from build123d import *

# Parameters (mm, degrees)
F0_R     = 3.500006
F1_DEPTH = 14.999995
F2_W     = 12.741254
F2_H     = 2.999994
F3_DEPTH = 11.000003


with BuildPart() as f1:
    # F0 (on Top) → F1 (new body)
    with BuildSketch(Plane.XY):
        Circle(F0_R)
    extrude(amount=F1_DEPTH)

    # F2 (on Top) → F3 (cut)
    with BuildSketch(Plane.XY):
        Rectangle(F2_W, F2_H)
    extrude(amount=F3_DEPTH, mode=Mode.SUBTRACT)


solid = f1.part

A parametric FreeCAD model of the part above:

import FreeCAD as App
import Part
import Sketcher
from FreeCAD import Vector

doc = App.newDocument("Part")
params = doc.addObject("Spreadsheet::Sheet", "Params")
for row, (alias, value) in enumerate([
    ("pad1_length", "14.999995 mm"),
    ("pocket1_length", "11.000003 mm"),
], start=1):
    params.set(f"A{row}", alias)
    params.set(f"B{row}", "=" + value)
    params.setAlias(f"B{row}", alias)

body = doc.addObject("PartDesign::Body", "Body")

sketch1 = doc.addObject("Sketcher::SketchObject", "Sketch")
body.addObject(sketch1)
sketch1.AttachmentSupport = (doc.XY_Plane, [""])
sketch1.MapMode = "FlatFace"
sketch1.addGeometry(Part.Circle(Vector(0, 0, 0), Vector(0, 0, 1), 3.5), False)
sketch1.addConstraint(Sketcher.Constraint("Coincident", 0, 3, -1, 1))
sketch1.addConstraint(Sketcher.Constraint("Diameter", 0, 7.000012))
pad1 = doc.addObject("PartDesign::Pad", "Pad")
body.addObject(pad1)
pad1.Profile = sketch1
pad1.setExpression("Length", "Params.pad1_length")

sketch2 = doc.addObject("Sketcher::SketchObject", "Sketch001")
body.addObject(sketch2)
sketch2.AttachmentSupport = (doc.XY_Plane, [""])
sketch2.MapMode = "FlatFace"
sketch2.addGeometry(Part.LineSegment(Vector(-6.4, 1.5, 0), Vector(-6.4, -1.5, 0)), False)
sketch2.addGeometry(Part.LineSegment(Vector(-6.4, -1.5, 0), Vector(6.4, -1.5, 0)), False)
sketch2.addGeometry(Part.LineSegment(Vector(6.4, -1.5, 0), Vector(6.4, 1.5, 0)), False)
sketch2.addGeometry(Part.LineSegment(Vector(6.4, 1.5, 0), Vector(-6.4, 1.5, 0)), False)
sketch2.addConstraint(Sketcher.Constraint("Coincident", 0, 2, 1, 1))
sketch2.addConstraint(Sketcher.Constraint("Coincident", 1, 2, 2, 1))
sketch2.addConstraint(Sketcher.Constraint("Coincident", 2, 2, 3, 1))
sketch2.addConstraint(Sketcher.Constraint("Coincident", 3, 2, 0, 1))
sketch2.addConstraint(Sketcher.Constraint("Vertical", 0))
sketch2.addConstraint(Sketcher.Constraint("Horizontal", 1))
sketch2.addConstraint(Sketcher.Constraint("Vertical", 2))
sketch2.addConstraint(Sketcher.Constraint("Horizontal", 3))
sketch2.addConstraint(Sketcher.Constraint("Symmetric", 0, 2, 2, 2, -1, 1))
sketch2.addConstraint(Sketcher.Constraint("DistanceX", 1, 1, 1, 2, 12.741254))
sketch2.addConstraint(Sketcher.Constraint("DistanceY", 0, 2, 0, 1, 2.999994))
pocket1 = doc.addObject("PartDesign::Pocket", "Pocket")
body.addObject(pocket1)
pocket1.Profile = sketch2
pocket1.setExpression("Length", "Params.pocket1_length")
pocket1.Reversed = True

doc.recompute()
